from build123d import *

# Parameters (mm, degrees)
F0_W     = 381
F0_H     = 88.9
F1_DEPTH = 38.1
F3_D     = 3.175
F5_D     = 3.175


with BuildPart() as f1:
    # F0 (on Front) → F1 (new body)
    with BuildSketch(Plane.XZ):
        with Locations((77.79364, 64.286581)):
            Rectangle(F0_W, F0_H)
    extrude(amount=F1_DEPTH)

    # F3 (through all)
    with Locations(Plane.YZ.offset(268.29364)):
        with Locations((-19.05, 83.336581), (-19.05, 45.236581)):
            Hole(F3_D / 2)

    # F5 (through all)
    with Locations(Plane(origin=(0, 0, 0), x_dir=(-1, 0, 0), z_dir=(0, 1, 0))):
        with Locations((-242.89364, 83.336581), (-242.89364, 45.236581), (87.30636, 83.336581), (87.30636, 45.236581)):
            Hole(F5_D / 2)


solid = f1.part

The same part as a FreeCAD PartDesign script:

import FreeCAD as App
import Part
import Sketcher
Q = App.Units.Quantity


def add_polygon(sketch, points):
    """Adds a closed chain of lines whose ends are joined by coincident constraints."""
    first, n = sketch.GeometryCount, len(points)
    for a, b in zip(points, points[1:] + points[:1]):
        sketch.addGeometry(Part.LineSegment(App.Vector(*a, 0), App.Vector(*b, 0)), False)
    for i in range(n):
        sketch.addConstraint(Sketcher.Constraint("Coincident", first + i, 2, first + (i + 1) % n, 1))

doc = App.newDocument("Part")
body = doc.addObject("PartDesign::Body", "Body")

# Sketch on XZ plane
sketch1 = body.newObject("Sketcher::SketchObject", "Sketch")
sketch1.AttachmentSupport = (doc.getObject("XZ_Plane"), [""])
sketch1.MapMode = "FlatFace"
add_polygon(sketch1, [(-113, 109), (-113, 20), (268, 20), (268, 109)])  # lines 0-3
sketch1.addConstraint(Sketcher.Constraint("Vertical", 0))
sketch1.addConstraint(Sketcher.Constraint("Horizontal", 1))
sketch1.addConstraint(Sketcher.Constraint("Vertical", 2))
sketch1.addConstraint(Sketcher.Constraint("Horizontal", 3))
sketch1.addConstraint(Sketcher.Constraint("DistanceX", 1, 1, 1, 2, Q("15 in")))
sketch1.addConstraint(Sketcher.Constraint("DistanceY", 0, 2, 0, 1, Q("3.5 in")))
sketch1.addConstraint(Sketcher.Constraint("DistanceX", 0, 2, -1, 1, Q("112.70636 mm")))
sketch1.addConstraint(Sketcher.Constraint("DistanceY", -1, 1, 0, 2, Q("19.836581 mm")))
pad1 = body.newObject("PartDesign::Pad", "Pad")
pad1.Profile = sketch1
pad1.Length = Q("1.5 in")

# Sketch on YZ plane
sketch2 = body.newObject("Sketcher::SketchObject", "Sketch001")
sketch2.AttachmentSupport = (doc.getObject("YZ_Plane"), [""])
sketch2.MapMode = "FlatFace"
sketch2.AttachmentOffset = App.Placement(App.Vector(0, 0, 268.29364), App.Rotation())
sketch2.addGeometry(Part.Circle(App.Vector(-19.1, 83.3, 0), App.Vector(0, 0, 1), 1.6), False)
sketch2.addGeometry(Part.Circle(App.Vector(-19.1, 45.2, 0), App.Vector(0, 0, 1), 1.6), False)
sketch2.addConstraint(Sketcher.Constraint("Equal", 0, 1))
sketch2.addConstraint(Sketcher.Constraint("Vertical", 0, 3, 1, 3))
sketch2.addConstraint(Sketcher.Constraint("Diameter", 0, Q("0.125 in")))
sketch2.addConstraint(Sketcher.Constraint("DistanceY", 1, 3, 0, 3, Q("1.5 in")))
sketch2.addConstraint(Sketcher.Constraint("DistanceX", 0, 3, -1, 1, Q("0.75 in")))
sketch2.addConstraint(Sketcher.Constraint("DistanceY", -1, 1, 0, 3, Q("83.336581 mm")))
doc.recompute()
hole = body.newObject("PartDesign::Hole", "Hole")
hole.Profile = sketch2
hole.ThreadType = "None"
hole.Diameter = Q("0.125 in")
hole.DepthType = "ThroughAll"

# Sketch on XZ plane
sketch3 = body.newObject("Sketcher::SketchObject", "Sketch002")
sketch3.AttachmentSupport = (doc.getObject("XZ_Plane"), [""])
sketch3.MapMode = "FlatFace"
sketch3.addGeometry(Part.Circle(App.Vector(242.9, 83.3, 0), App.Vector(0, 0, 1), 1.6), False)
sketch3.addGeometry(Part.Circle(App.Vector(242.9, 45.2, 0), App.Vector(0, 0, 1), 1.6), False)
sketch3.addGeometry(Part.Circle(App.Vector(-87.3, 83.3, 0), App.Vector(0, 0, 1), 1.6), False)
sketch3.addGeometry(Part.Circle(App.Vector(-87.3, 45.2, 0), App.Vector(0, 0, 1), 1.6), False)
sketch3.addConstraint(Sketcher.Constraint("Equal", 0, 1))
sketch3.addConstraint(Sketcher.Constraint("Equal", 1, 2))
sketch3.addConstraint(Sketcher.Constraint("Equal", 2, 3))
sketch3.addConstraint(Sketcher.Constraint("Horizontal", 0, 3, 2, 3))
sketch3.addConstraint(Sketcher.Constraint("Horizontal", 1, 3, 3, 3))
sketch3.addConstraint(Sketcher.Constraint("Vertical", 0, 3, 1, 3))
sketch3.addConstraint(Sketcher.Constraint("Vertical", 2, 3, 3, 3))
sketch3.addConstraint(Sketcher.Constraint("Diameter", 0, Q("0.125 in")))
sketch3.addConstraint(Sketcher.Constraint("DistanceX", 2, 3, 0, 3, Q("13 in")))
sketch3.addConstraint(Sketcher.Constraint("DistanceY", 1, 3, 0, 3, Q("1.5 in")))
sketch3.addConstraint(Sketcher.Constraint("DistanceX", -1, 1, 0, 3, Q("242.89364 mm")))
sketch3.addConstraint(Sketcher.Constraint("DistanceY", -1, 1, 0, 3, Q("83.336581 mm")))
doc.recompute()
hole2 = body.newObject("PartDesign::Hole", "Hole001")
hole2.Profile = sketch3
hole2.ThreadType = "None"
hole2.Diameter = Q("0.125 in")
hole2.DepthType = "ThroughAll"
hole2.Reversed = True

doc.recompute()
